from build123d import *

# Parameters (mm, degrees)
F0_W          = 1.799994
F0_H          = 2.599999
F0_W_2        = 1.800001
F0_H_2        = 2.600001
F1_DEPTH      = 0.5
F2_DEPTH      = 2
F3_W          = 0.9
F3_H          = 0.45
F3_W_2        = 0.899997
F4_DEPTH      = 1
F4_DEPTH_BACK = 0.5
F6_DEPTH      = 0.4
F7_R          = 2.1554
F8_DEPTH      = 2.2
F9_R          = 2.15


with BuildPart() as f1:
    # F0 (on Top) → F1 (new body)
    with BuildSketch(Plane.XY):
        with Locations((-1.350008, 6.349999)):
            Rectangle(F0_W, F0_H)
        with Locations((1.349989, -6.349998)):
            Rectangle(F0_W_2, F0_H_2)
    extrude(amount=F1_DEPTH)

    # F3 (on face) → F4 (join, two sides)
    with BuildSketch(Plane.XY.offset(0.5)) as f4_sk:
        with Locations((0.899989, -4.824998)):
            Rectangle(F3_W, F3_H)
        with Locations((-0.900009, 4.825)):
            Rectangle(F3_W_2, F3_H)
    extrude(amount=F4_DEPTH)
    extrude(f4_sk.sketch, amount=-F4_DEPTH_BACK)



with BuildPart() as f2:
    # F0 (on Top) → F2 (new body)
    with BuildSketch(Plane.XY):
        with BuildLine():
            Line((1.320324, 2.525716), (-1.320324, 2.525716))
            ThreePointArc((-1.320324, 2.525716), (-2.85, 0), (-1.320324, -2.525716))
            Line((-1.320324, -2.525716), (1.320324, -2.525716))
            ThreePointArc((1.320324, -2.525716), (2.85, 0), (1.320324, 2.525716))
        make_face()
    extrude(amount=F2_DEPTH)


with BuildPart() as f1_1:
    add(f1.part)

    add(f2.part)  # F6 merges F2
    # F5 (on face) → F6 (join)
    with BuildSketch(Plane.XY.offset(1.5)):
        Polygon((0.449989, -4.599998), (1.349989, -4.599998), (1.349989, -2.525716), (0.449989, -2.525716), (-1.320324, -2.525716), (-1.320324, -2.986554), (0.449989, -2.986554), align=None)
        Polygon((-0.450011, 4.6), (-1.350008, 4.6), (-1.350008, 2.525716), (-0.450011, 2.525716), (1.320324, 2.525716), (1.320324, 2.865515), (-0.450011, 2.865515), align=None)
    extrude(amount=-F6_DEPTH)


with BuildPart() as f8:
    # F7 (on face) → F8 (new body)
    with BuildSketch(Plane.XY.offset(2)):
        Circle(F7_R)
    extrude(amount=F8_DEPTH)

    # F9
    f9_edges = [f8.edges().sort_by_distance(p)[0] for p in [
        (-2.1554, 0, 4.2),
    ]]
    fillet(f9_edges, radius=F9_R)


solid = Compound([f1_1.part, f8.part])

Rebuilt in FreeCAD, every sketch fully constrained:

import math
import FreeCAD as App
import Part
import Sketcher

V = App.Vector
Q = App.Units.Quantity


def edges_at(feature, points):
    """Names of the edges that pass closest to the given points."""
    edges = feature.Shape.Edges
    near = lambda p: min(range(len(edges)), key=lambda i: edges[i].distToShape(Part.Vertex(*p))[0])
    return sorted({f"Edge{near(p) + 1}" for p in points})

doc = App.newDocument("Part")
body = doc.addObject("PartDesign::Body", "Body")
body.AllowCompound = True

sketch1 = body.newObject("Sketcher::SketchObject", "Sketch")
sketch1.AttachmentSupport = (doc.getObject("XY_Plane"), [""])
sketch1.MapMode = "FlatFace"
sketch1.addGeometry([
    Part.LineSegment(V(-2.3, 7.6, 0), V(-2.3, 5, 0)),
    Part.LineSegment(V(-2.3, 5, 0), V(-0.5, 5, 0)),
    Part.LineSegment(V(-0.5, 5, 0), V(-0.5, 7.6, 0)),
    Part.LineSegment(V(-0.5, 7.6, 0), V(-2.3, 7.6, 0)),
    Part.LineSegment(V(0.4, -5, 0), V(0.4, -7.6, 0)),
    Part.LineSegment(V(0.4, -7.6, 0), V(2.2, -7.6, 0)),
    Part.LineSegment(V(2.2, -7.6, 0), V(2.2, -5, 0)),
    Part.LineSegment(V(2.2, -5, 0), V(0.4, -5, 0)),
], False)
sketch1.addConstraint([
    Sketcher.Constraint("Coincident", 0, 2, 1, 1),
    Sketcher.Constraint("Coincident", 1, 2, 2, 1),
    Sketcher.Constraint("Coincident", 2, 2, 3, 1),
    Sketcher.Constraint("Coincident", 3, 2, 0, 1),
    Sketcher.Constraint("Coincident", 4, 2, 5, 1),
    Sketcher.Constraint("Coincident", 5, 2, 6, 1),
    Sketcher.Constraint("Coincident", 6, 2, 7, 1),
    Sketcher.Constraint("Coincident", 7, 2, 4, 1),
    Sketcher.Constraint("Vertical", 0),
    Sketcher.Constraint("Horizontal", 1),
    Sketcher.Constraint("Vertical", 2),
    Sketcher.Constraint("Horizontal", 3),
    Sketcher.Constraint("Vertical", 4),
    Sketcher.Constraint("Horizontal", 5),
    Sketcher.Constraint("Vertical", 6),
    Sketcher.Constraint("Horizontal", 7),
    Sketcher.Constraint("DistanceX", 5, 1, 5, 2, Q("1.800001 mm")),
    Sketcher.Constraint("DistanceY", 0, 2, 0, 1, Q("2.599999 mm")),
    Sketcher.Constraint("DistanceY", 4, 2, 4, 1, Q("2.600001 mm")),
    Sketcher.Constraint("DistanceX", 1, 2, 4, 2, Q("0.9 mm")),
    Sketcher.Constraint("DistanceY", 4, 2, 1, 2, Q("12.699998 mm")),
    Sketcher.Constraint("DistanceY", -1, 1, 0, 2, Q("5.05 mm")),
    Sketcher.Constraint("DistanceX", 1, 1, 1, 2, Q("1.799994 mm")),
    Sketcher.Constraint("DistanceX", 1, 2, -1, 1, Q("0.450011 mm")),
])
pad1 = body.newObject("PartDesign::Pad", "Pad")
pad1.Profile = sketch1
pad1.Length = 0.5

sketch2 = body.newObject("Sketcher::SketchObject", "Sketch001")
sketch2.AttachmentSupport = (doc.getObject("XY_Plane"), [""])
sketch2.MapMode = "FlatFace"
sketch2.AttachmentOffset = App.Placement(V(0, 0, 0.5), App.Rotation())
sketch2.addGeometry([
    Part.LineSegment(V(0.45, -4.6, 0), V(0.45, -5.05, 0)),
    Part.LineSegment(V(0.45, -5.05, 0), V(1.35, -5.05, 0)),
    Part.LineSegment(V(1.35, -5.05, 0), V(1.35, -4.6, 0)),
    Part.LineSegment(V(1.35, -4.6, 0), V(0.45, -4.6, 0)),
    Part.LineSegment(V(-1.35, 5.05, 0), V(-1.35, 4.6, 0)),
    Part.LineSegment(V(-1.35, 4.6, 0), V(-0.45, 4.6, 0)),
    Part.LineSegment(V(-0.45, 4.6, 0), V(-0.45, 5.05, 0)),
    Part.LineSegment(V(-0.45, 5.05, 0), V(-1.35, 5.05, 0)),
], False)
sketch2.addConstraint([
    Sketcher.Constraint("Coincident", 0, 2, 1, 1),
    Sketcher.Constraint("Coincident", 1, 2, 2, 1),
    Sketcher.Constraint("Coincident", 2, 2, 3, 1),
    Sketcher.Constraint("Coincident", 3, 2, 0, 1),
    Sketcher.Constraint("Coincident", 4, 2, 5, 1),
    Sketcher.Constraint("Coincident", 5, 2, 6, 1),
    Sketcher.Constraint("Coincident", 6, 2, 7, 1),
    Sketcher.Constraint("Coincident", 7, 2, 4, 1),
    Sketcher.Constraint("Vertical", 0),
    Sketcher.Constraint("Horizontal", 1),
    Sketcher.Constraint("Vertical", 2),
    Sketcher.Constraint("Horizontal", 3),
    Sketcher.Constraint("Vertical", 4),
    Sketcher.Constraint("Horizontal", 5),
    Sketcher.Constraint("Vertical", 6),
    Sketcher.Constraint("Horizontal", 7),
    Sketcher.Constraint("Equal", 2, 4),
    Sketcher.Constraint("DistanceX", 1, 1, 1, 2, Q("0.9 mm")),
    Sketcher.Constraint("DistanceY", 0, 2, 0, 1, Q("0.45 mm")),
    Sketcher.Constraint("DistanceY", 2, 2, -1, 1, Q("4.599998 mm")),
    Sketcher.Constraint("DistanceY", -1, 1, 4, 2, Q("4.6 mm")),
    Sketcher.Constraint("DistanceX", 5, 2, 3, 2, Q("0.899999 mm")),
    Sketcher.Constraint("DistanceX", 5, 1, 5, 2, Q("0.899997 mm")),
    Sketcher.Constraint("DistanceX", -1, 1, 0, 2, Q("0.449989 mm")),
])
pad2 = body.newObject("PartDesign::Pad", "Pad001")
pad2.Profile = sketch2
pad2.Type = "TwoLengths"
pad2.Length = 1
pad2.Length2 = 0.5
body2 = doc.addObject("PartDesign::Body", "Body001")

sketch3 = body2.newObject("Sketcher::SketchObject", "Sketch002")
sketch3.AttachmentSupport = (doc.getObject("XY_Plane001"), [""])
sketch3.MapMode = "FlatFace"
sketch3.addGeometry([
    Part.LineSegment(V(1.3, 2.5, 0), V(-1.3, 2.5, 0)),
    Part.ArcOfCircle(Part.Circle(V(0, 0, 0), V(0, 0, 1), 2.8), math.radians(118), math.radians(242)),
    Part.LineSegment(V(-1.3, -2.5, 0), V(1.3, -2.5, 0)),
    Part.ArcOfCircle(Part.Circle(V(0, 0, 0), V(0, 0, 1), 2.8), math.radians(-62), math.radians(62)),
], False)
sketch3.addConstraint([
    Sketcher.Constraint("Coincident", 0, 2, 1, 1),
    Sketcher.Constraint("Coincident", 1, 2, 2, 1),
    Sketcher.Constraint("Coincident", 2, 2, 3, 1),
    Sketcher.Constraint("Coincident", 3, 2, 0, 1),
    Sketcher.Constraint("Horizontal", 0),
    Sketcher.Constraint("Horizontal", 2),
    Sketcher.Constraint("Coincident", 1, 3, -1, 1),
    Sketcher.Constraint("Coincident", 3, 3, -1, 1),
    Sketcher.Constraint("Equal", 1, 3),
    Sketcher.Constraint("Vertical", 0, 2, 1, 2),
    Sketcher.Constraint("Radius", 1, Q("2.849999 mm")),
    Sketcher.Constraint("DistanceX", 0, 2, 0, 1, Q("2.640648 mm")),
])
pad3 = body2.newObject("PartDesign::Pad", "Pad002")
pad3.Profile = sketch3
pad3.Length = 2
body.AllowCompound = True
doc.recompute()

boolean = body.newObject("PartDesign::Boolean", "Boolean")
boolean.Type = "Fuse"
boolean.addObjects([body2])

sketch4 = body.newObject("Sketcher::SketchObject", "Sketch003")
sketch4.AttachmentSupport = (doc.getObject("XY_Plane"), [""])
sketch4.MapMode = "FlatFace"
sketch4.AttachmentOffset = App.Placement(V(0, 0, 1.5), App.Rotation())
sketch4.addGeometry([
    Part.LineSegment(V(0.45, -4.6, 0), V(1.35, -4.6, 0)),
    Part.LineSegment(V(1.35, -4.6, 0), V(1.35, -2.53, 0)),
    Part.LineSegment(V(1.35, -2.53, 0), V(-1.32, -2.53, 0)),
    Part.LineSegment(V(-1.32, -2.53, 0), V(-1.32, -2.99, 0)),
    Part.LineSegment(V(-1.32, -2.99, 0), V(0.45, -2.99, 0)),
    Part.LineSegment(V(0.45, -2.99, 0), V(0.45, -4.6, 0)),
    Part.LineSegment(V(-0.45, 4.6, 0), V(-1.35, 4.6, 0)),
    Part.LineSegment(V(-1.35, 4.6, 0), V(-1.35, 2.53, 0)),
    Part.LineSegment(V(-1.35, 2.53, 0), V(1.32, 2.53, 0)),
    Part.LineSegment(V(1.32, 2.53, 0), V(1.32, 2.87, 0)),
    Part.LineSegment(V(1.32, 2.87, 0), V(-0.45, 2.87, 0)),
    Part.LineSegment(V(-0.45, 2.87, 0), V(-0.45, 4.6, 0)),
], False)
sketch4.addConstraint([
    Sketcher.Constraint("Coincident", 0, 2, 1, 1),
    Sketcher.Constraint("Coincident", 1, 2, 2, 1),
    Sketcher.Constraint("Coincident", 2, 2, 3, 1),
    Sketcher.Constraint("Coincident", 3, 2, 4, 1),
    Sketcher.Constraint("Coincident", 4, 2, 5, 1),
    Sketcher.Constraint("Coincident", 5, 2, 0, 1),
    Sketcher.Constraint("Coincident", 6, 2, 7, 1),
    Sketcher.Constraint("Coincident", 7, 2, 8, 1),
    Sketcher.Constraint("Coincident", 8, 2, 9, 1),
    Sketcher.Constraint("Coincident", 9, 2, 10, 1),
    Sketcher.Constraint("Coincident", 10, 2, 11, 1),
    Sketcher.Constraint("Coincident", 11, 2, 6, 1),
    Sketcher.Constraint("Horizontal", 0),
    Sketcher.Constraint("Vertical", 1),
    Sketcher.Constraint("Horizontal", 2),
    Sketcher.Constraint("Vertical", 3),
    Sketcher.Constraint("Horizontal", 4),
    Sketcher.Constraint("Vertical", 5),
    Sketcher.Constraint("Horizontal", 6),
    Sketcher.Constraint("Vertical", 7),
    Sketcher.Constraint("Horizontal", 8),
    Sketcher.Constraint("Vertical", 9),
    Sketcher.Constraint("Horizontal", 10),
    Sketcher.Constraint("Vertical", 11),
    Sketcher.Constraint("Symmetric", 2, 2, 8, 2, -1, 1),
    Sketcher.Constraint("Equal", 1, 7),
    Sketcher.Constraint("DistanceX", 0, 1, 0, 2, Q("0.9 mm")),
    Sketcher.Constraint("DistanceY", 0, 2, -1, 1, Q("4.599998 mm")),
    Sketcher.Constraint("DistanceY", 9, 1, 9, 2, Q("0.339799 mm")),
    Sketcher.Constraint("DistanceX", 2, 2, 2, 1, Q("2.670313 mm")),
    Sketcher.Constraint("DistanceX", 6, 2, 6, 1, Q("0.899997 mm")),
    Sketcher.Constraint("DistanceX", 8, 1, 8, 2, Q("2.670332 mm")),
    Sketcher.Constraint("DistanceY", 1, 1, 1, 2, Q("2.074282 mm")),
    Sketcher.Constraint("DistanceY", 3, 2, 3, 1, Q("0.460838 mm")),
    Sketcher.Constraint("DistanceX", -1, 1, 0, 2, Q("1.349989 mm")),
])
pad4 = body.newObject("PartDesign::Pad", "Pad003")
pad4.Profile = sketch4
pad4.Length = 0.4
pad4.Reversed = True
body3 = doc.addObject("PartDesign::Body", "Body002")

sketch5 = body3.newObject("Sketcher::SketchObject", "Sketch004")
sketch5.AttachmentSupport = (doc.getObject("XY_Plane002"), [""])
sketch5.MapMode = "FlatFace"
sketch5.AttachmentOffset = App.Placement(V(0, 0, 2), App.Rotation())
sketch5.addGeometry(Part.Circle(V(0, 0, 0), V(0, 0, 1), 2.2), False)
sketch5.addConstraint([
    Sketcher.Constraint("Coincident", 0, 3, -1, 1),
    Sketcher.Constraint("Diameter", 0, Q("4.3108 mm")),
])
pad5 = body3.newObject("PartDesign::Pad", "Pad004")
pad5.Profile = sketch5
pad5.Length = 2.2
doc.recompute()

fillet = body3.newObject("PartDesign::Fillet", "Fillet")
fillet.Base = (pad5, edges_at(pad5, [(-2.155, 0, 4.2)]))
fillet.Radius = 2.15

doc.recompute()
